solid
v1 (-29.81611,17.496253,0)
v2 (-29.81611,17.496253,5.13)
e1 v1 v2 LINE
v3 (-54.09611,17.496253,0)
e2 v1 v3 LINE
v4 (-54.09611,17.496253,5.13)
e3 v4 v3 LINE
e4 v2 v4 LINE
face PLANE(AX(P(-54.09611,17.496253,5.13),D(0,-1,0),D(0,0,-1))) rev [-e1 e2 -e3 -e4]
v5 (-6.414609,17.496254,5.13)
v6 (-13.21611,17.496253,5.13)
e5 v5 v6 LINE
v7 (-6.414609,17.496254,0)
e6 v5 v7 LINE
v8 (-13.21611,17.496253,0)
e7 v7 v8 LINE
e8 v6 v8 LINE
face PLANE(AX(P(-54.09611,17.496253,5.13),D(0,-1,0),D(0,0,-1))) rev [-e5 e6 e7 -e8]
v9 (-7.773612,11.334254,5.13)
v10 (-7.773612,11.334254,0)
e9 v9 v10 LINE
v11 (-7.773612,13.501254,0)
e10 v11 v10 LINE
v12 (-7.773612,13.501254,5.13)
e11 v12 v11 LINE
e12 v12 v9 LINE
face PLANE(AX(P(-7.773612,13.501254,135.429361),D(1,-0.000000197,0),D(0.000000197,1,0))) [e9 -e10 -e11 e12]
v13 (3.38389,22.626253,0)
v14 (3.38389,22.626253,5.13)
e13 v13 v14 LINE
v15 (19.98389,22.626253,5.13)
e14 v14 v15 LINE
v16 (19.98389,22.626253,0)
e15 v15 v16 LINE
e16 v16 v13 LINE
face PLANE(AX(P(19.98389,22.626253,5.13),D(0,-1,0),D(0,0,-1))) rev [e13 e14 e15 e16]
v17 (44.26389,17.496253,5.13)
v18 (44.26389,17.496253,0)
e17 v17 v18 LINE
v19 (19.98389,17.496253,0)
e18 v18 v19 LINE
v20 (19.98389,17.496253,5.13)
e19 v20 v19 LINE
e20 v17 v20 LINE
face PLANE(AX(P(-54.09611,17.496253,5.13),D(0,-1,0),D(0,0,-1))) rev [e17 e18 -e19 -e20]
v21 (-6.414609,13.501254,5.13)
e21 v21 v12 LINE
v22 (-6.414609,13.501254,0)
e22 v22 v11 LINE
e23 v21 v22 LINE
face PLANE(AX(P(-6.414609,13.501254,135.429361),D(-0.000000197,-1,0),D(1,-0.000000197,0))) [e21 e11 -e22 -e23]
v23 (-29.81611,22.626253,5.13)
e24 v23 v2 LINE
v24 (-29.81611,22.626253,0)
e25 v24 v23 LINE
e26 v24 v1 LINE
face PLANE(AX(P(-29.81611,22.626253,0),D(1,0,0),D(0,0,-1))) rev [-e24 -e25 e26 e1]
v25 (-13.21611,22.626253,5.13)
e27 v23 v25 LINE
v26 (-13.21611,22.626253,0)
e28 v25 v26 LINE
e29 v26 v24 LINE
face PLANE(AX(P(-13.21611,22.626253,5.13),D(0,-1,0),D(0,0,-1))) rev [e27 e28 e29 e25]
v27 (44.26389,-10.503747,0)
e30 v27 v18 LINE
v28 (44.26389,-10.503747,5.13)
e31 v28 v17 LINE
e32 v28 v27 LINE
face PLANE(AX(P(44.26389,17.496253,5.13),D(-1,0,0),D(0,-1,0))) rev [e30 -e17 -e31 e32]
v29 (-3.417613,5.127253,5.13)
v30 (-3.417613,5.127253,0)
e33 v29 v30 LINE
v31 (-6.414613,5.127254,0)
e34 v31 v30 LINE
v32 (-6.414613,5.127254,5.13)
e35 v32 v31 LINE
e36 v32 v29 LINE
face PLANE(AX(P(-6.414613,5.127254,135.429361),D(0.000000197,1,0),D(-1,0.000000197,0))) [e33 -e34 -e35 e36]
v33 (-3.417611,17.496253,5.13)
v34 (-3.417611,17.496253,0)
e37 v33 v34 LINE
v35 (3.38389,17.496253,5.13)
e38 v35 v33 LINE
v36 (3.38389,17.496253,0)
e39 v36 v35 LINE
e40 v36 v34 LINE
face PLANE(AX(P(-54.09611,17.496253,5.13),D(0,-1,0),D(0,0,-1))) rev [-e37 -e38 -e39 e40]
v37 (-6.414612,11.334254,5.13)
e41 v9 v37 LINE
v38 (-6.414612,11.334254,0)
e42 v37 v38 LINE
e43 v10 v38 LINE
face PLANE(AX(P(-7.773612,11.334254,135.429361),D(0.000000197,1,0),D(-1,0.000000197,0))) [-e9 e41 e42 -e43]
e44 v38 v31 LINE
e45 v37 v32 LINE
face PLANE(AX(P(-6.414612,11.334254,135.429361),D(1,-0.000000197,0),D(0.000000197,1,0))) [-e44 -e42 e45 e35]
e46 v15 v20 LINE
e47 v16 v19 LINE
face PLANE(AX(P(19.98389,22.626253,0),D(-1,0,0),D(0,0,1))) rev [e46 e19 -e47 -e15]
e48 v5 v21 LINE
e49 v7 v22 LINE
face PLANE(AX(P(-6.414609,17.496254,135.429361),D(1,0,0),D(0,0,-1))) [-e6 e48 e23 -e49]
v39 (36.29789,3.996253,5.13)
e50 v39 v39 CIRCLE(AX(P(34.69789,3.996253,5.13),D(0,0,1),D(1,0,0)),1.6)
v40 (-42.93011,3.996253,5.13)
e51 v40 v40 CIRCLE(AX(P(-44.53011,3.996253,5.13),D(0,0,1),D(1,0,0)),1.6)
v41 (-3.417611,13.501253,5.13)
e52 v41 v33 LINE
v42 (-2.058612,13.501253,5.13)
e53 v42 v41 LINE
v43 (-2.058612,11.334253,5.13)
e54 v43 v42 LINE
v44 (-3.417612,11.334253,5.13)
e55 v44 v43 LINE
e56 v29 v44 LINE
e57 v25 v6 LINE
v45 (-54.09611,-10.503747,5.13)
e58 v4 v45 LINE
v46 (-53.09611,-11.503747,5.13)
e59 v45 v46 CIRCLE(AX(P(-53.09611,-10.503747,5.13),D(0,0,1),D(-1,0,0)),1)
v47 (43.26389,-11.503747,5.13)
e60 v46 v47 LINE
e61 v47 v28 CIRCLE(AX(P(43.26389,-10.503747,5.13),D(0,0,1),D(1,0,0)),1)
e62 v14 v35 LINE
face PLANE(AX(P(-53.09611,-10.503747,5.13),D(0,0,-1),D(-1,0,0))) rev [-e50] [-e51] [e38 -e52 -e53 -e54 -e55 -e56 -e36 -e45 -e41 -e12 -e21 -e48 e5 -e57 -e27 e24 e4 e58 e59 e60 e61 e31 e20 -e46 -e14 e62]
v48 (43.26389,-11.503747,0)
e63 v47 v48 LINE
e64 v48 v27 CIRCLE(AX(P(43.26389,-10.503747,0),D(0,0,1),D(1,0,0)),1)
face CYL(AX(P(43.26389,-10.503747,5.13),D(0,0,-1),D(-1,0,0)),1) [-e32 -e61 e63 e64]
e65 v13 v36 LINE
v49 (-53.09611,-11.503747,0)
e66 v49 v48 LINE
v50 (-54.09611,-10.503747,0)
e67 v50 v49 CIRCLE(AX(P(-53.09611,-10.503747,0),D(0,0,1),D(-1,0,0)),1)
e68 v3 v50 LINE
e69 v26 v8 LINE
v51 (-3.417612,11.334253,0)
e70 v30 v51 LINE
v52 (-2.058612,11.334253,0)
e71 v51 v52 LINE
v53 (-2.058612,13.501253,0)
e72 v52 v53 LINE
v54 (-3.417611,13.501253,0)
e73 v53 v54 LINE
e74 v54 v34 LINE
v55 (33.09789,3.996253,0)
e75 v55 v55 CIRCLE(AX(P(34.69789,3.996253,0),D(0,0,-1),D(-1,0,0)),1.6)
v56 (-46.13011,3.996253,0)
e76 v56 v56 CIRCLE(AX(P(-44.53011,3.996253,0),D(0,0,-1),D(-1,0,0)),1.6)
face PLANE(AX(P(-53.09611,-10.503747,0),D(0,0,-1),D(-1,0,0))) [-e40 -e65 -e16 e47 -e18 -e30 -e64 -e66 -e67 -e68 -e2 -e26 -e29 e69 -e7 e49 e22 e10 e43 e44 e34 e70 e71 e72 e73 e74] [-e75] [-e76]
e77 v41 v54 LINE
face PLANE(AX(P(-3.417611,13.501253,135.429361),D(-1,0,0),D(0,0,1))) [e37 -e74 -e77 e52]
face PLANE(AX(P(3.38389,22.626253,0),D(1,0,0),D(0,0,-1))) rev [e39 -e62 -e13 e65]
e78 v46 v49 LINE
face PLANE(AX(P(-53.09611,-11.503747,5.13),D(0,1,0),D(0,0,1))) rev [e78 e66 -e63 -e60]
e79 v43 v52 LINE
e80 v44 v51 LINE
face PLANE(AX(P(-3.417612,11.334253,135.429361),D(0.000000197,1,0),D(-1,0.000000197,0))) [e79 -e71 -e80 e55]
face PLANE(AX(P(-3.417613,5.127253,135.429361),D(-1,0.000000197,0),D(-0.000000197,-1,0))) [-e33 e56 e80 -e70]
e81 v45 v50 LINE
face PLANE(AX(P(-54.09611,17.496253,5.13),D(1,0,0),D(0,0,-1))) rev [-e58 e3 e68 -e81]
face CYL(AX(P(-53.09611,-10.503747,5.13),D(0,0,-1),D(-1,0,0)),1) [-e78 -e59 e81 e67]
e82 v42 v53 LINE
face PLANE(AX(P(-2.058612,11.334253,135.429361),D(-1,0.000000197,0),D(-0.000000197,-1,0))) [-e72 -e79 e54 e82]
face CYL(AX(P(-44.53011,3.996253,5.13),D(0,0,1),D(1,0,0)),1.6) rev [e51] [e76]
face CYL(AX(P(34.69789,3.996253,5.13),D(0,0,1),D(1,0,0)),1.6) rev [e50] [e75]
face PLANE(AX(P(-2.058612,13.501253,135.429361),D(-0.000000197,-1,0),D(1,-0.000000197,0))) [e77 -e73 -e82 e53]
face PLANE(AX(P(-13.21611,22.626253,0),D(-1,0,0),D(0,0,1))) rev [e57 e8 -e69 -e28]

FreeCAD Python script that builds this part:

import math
import FreeCAD as App
import Part
import Sketcher
from FreeCAD import Vector
Q = App.Units.Quantity

doc = App.newDocument("Part")
body = doc.addObject("PartDesign::Body", "Body")

# Sketch on XY plane
sketch1 = doc.addObject("Sketcher::SketchObject", "Sketch")
body.addObject(sketch1)
sketch1.AttachmentSupport = (doc.XY_Plane, [""])
sketch1.MapMode = "FlatFace"
sketch1.addGeometry([
    Part.LineSegment(Vector(44.3, 17.5, 0), Vector(-54.1, 17.5, 0)),  # 0
    Part.LineSegment(Vector(-54.1, 17.5, 0), Vector(-54.1, -10.5, 0)),  # 1
    Part.ArcOfCircle(Part.Circle(Vector(-53.1, -10.5, 0), Vector(0, 0, 1), 1), math.radians(-180), math.radians(-90)),  # 2
    Part.LineSegment(Vector(-53.1, -11.5, 0), Vector(43.3, -11.5, 0)),  # 3
    Part.ArcOfCircle(Part.Circle(Vector(43.3, -10.5, 0), Vector(0, 0, 1), 1), math.radians(-90), math.radians(0)),  # 4
    Part.LineSegment(Vector(44.3, -10.5, 0), Vector(44.3, 17.5, 0)),  # 5
], False)
sketch1.addConstraint([
    Sketcher.Constraint("Coincident", 0, 2, 1, 1),
    Sketcher.Constraint("Tangent", 1, 2, 2, 1),
    Sketcher.Constraint("Tangent", 2, 2, 3, 1),
    Sketcher.Constraint("Tangent", 3, 2, 4, 1),
    Sketcher.Constraint("Tangent", 4, 2, 5, 1),
    Sketcher.Constraint("Coincident", 5, 2, 0, 1),
    Sketcher.Constraint("Horizontal", 0),
    Sketcher.Constraint("Vertical", 1),
    Sketcher.Constraint("Horizontal", 3),
    Sketcher.Constraint("Vertical", 5),
    Sketcher.Constraint("Equal", 2, 4),
    Sketcher.Constraint("Radius", 2, 1.0),
    Sketcher.Constraint("DistanceY", 1, 2, 1, 1, 28.0),
    Sketcher.Constraint("DistanceX", 0, 2, 0, 1, 98.36),
    Sketcher.Constraint("DistanceX", 2, 3, -1, 1, 53.09611),
    Sketcher.Constraint("DistanceY", 2, 3, -1, 1, 10.503747),
])
pad1 = doc.addObject("PartDesign::Pad", "Pad")
body.addObject(pad1)
pad1.Profile = sketch1
pad1.Length = 5.13

# Sketch on XY plane
sketch2 = doc.addObject("Sketcher::SketchObject", "Sketch001")
body.addObject(sketch2)
sketch2.AttachmentSupport = (doc.XY_Plane, [""])
sketch2.MapMode = "FlatFace"
sketch2.AttachmentOffset = App.Placement(Vector(0, 0, 5.13), App.Rotation())
sketch2.addGeometry([
    Part.Circle(Vector(-44.5, 4, 0), Vector(0, 0, 1), 1.6),
    Part.Circle(Vector(34.7, 4, 0), Vector(0, 0, 1), 1.6),
], False)
sketch2.addConstraint([
    Sketcher.Constraint("Equal", 0, 1),
    Sketcher.Constraint("Horizontal", 0, 3, 1, 3),
    Sketcher.Constraint("Diameter", 0, 3.2),
    Sketcher.Constraint("DistanceX", 0, 3, 1, 3, 79.228),
    Sketcher.Constraint("DistanceX", 0, 3, -1, 1, 44.53011),
    Sketcher.Constraint("DistanceY", -1, 1, 0, 3, 3.996253),
])
doc.recompute()
hole = doc.addObject("PartDesign::Hole", "Hole")
body.addObject(hole)
hole.Profile = sketch2
hole.ThreadType = "None"
hole.Diameter = 3.2
hole.DepthType = "Dimension"
hole.Depth = 5.13
hole.DrillPoint = "Flat"

# Sketch on XZ plane
sketch3 = doc.addObject("Sketcher::SketchObject", "Sketch002")
body.addObject(sketch3)
sketch3.AttachmentSupport = (doc.XZ_Plane, [""])
sketch3.MapMode = "FlatFace"
sketch3.AttachmentOffset = App.Placement(Vector(0, 0, -17.496253), App.Rotation())
sketch3.addGeometry([
    Part.LineSegment(Vector(3, 0, 0), Vector(3, 5, 0)),  # 0
    Part.LineSegment(Vector(3, 5, 0), Vector(20, 5, 0)),  # 1
    Part.LineSegment(Vector(20, 5, 0), Vector(20, 0, 0)),  # 2
    Part.LineSegment(Vector(20, 0, 0), Vector(3, 0, 0)),  # 3
    Part.LineSegment(Vector(-30, 0, 0), Vector(-30, 5, 0)),  # 4
    Part.LineSegment(Vector(-30, 5, 0), Vector(-13, 5, 0)),  # 5
    Part.LineSegment(Vector(-13, 5, 0), Vector(-13, 0, 0)),  # 6
    Part.LineSegment(Vector(-13, 0, 0), Vector(-30, 0, 0)),  # 7
], False)
sketch3.addConstraint([
    Sketcher.Constraint("Coincident", 0, 2, 1, 1),
    Sketcher.Constraint("Coincident", 1, 2, 2, 1),
    Sketcher.Constraint("Coincident", 2, 2, 3, 1),
    Sketcher.Constraint("Coincident", 3, 2, 0, 1),
    Sketcher.Constraint("Coincident", 4, 2, 5, 1),
    Sketcher.Constraint("Coincident", 5, 2, 6, 1),
    Sketcher.Constraint("Coincident", 6, 2, 7, 1),
    Sketcher.Constraint("Coincident", 7, 2, 4, 1),
    Sketcher.Constraint("Vertical", 0),
    Sketcher.Constraint("Horizontal", 1),
    Sketcher.Constraint("Vertical", 2),
    Sketcher.Constraint("Horizontal", 3),
    Sketcher.Constraint("Vertical", 4),
    Sketcher.Constraint("Horizontal", 5),
    Sketcher.Constraint("Vertical", 6),
    Sketcher.Constraint("Horizontal", 7),
    Sketcher.Constraint("PointOnObject", 2, 2, -1),
    Sketcher.Constraint("PointOnObject", 6, 2, -1),
    Sketcher.Constraint("Horizontal", 1, 2, 4, 2),
    Sketcher.Constraint("Equal", 3, 5),
    Sketcher.Constraint("DistanceX", 1, 1, 1, 2, 16.6),
    Sketcher.Constraint("DistanceY", 0, 1, 0, 2, 5.13),
    Sketcher.Constraint("DistanceX", 4, 2, 0, 2, 33.2),
    Sketcher.Constraint("DistanceX", -1, 1, 0, 2, 3.38389),
])
pad2 = doc.addObject("PartDesign::Pad", "Pad001")
body.addObject(pad2)
pad2.Profile = sketch3
pad2.Length = 5.13
pad2.Reversed = True

# Sketch on XY plane
sketch4 = doc.addObject("Sketcher::SketchObject", "Sketch003")
body.addObject(sketch4)
sketch4.AttachmentSupport = (doc.XY_Plane, [""])
sketch4.MapMode = "FlatFace"
sketch4.AttachmentOffset = App.Placement(Vector(0, 0, 5.13), App.Rotation())
sketch4.addGeometry([
    Part.LineSegment(Vector(-6.4, 144.3, 0), Vector(-6.4, 13.5, 0)),  # 0
    Part.LineSegment(Vector(-6.4, 13.5, 0), Vector(-7.8, 13.5, 0)),  # 1
    Part.LineSegment(Vector(-7.8, 13.5, 0), Vector(-7.8, 11.3, 0)),  # 2
    Part.LineSegment(Vector(-7.8, 11.3, 0), Vector(-6.4, 11.3, 0)),  # 3
    Part.LineSegment(Vector(-6.4, 11.3, 0), Vector(-6.4, 5.1, 0)),  # 4
    Part.LineSegment(Vector(-6.4, 5.1, 0), Vector(-3.4, 5.1, 0)),  # 5
    Part.LineSegment(Vector(-3.4, 5.1, 0), Vector(-3.4, 11.3, 0)),  # 6
    Part.LineSegment(Vector(-3.4, 11.3, 0), Vector(-2.1, 11.3, 0)),  # 7
    Part.LineSegment(Vector(-2.1, 11.3, 0), Vector(-2.1, 13.5, 0)),  # 8
    Part.LineSegment(Vector(-2.1, 13.5, 0), Vector(-3.4, 13.5, 0)),  # 9
    Part.LineSegment(Vector(-3.4, 13.5, 0), Vector(-3.4, 144.3, 0)),  # 10
    Part.LineSegment(Vector(-3.4, 144.3, 0), Vector(-3.4, 397.8, 0)),  # 11
    Part.LineSegment(Vector(-3.4, 397.8, 0), Vector(-6.4, 397.8, 0)),  # 12
    Part.LineSegment(Vector(-6.4, 397.8, 0), Vector(-6.4, 144.3, 0)),  # 13
], False)
sketch4.addConstraint([
    Sketcher.Constraint("Coincident", 0, 2, 1, 1),
    Sketcher.Constraint("Coincident", 1, 2, 2, 1),
    Sketcher.Constraint("Coincident", 2, 2, 3, 1),
    Sketcher.Constraint("Coincident", 3, 2, 4, 1),
    Sketcher.Constraint("Coincident", 4, 2, 5, 1),
    Sketcher.Constraint("Coincident", 5, 2, 6, 1),
    Sketcher.Constraint("Coincident", 6, 2, 7, 1),
    Sketcher.Constraint("Coincident", 7, 2, 8, 1),
    Sketcher.Constraint("Coincident", 8, 2, 9, 1),
    Sketcher.Constraint("Coincident", 9, 2, 10, 1),
    Sketcher.Constraint("Coincident", 10, 2, 11, 1),
    Sketcher.Constraint("Coincident", 11, 2, 12, 1),
    Sketcher.Constraint("Coincident", 12, 2, 13, 1),
    Sketcher.Constraint("Coincident", 13, 2, 0, 1),
    Sketcher.Constraint("Vertical", 0),
    Sketcher.Constraint("Horizontal", 1),
    Sketcher.Constraint("Vertical", 2),
    Sketcher.Constraint("Horizontal", 3),
    Sketcher.Constraint("Vertical", 4),
    Sketcher.Constraint("Horizontal", 5),
    Sketcher.Constraint("Vertical", 6),
    Sketcher.Constraint("Horizontal", 7),
    Sketcher.Constraint("Vertical", 8),
    Sketcher.Constraint("Horizontal", 9),
    Sketcher.Constraint("Vertical", 10),
    Sketcher.Constraint("Horizontal", 12),
    Sketcher.Constraint("Parallel", 11, 13),
    Sketcher.Constraint("Horizontal", 3, 2, 6, 2),
    Sketcher.Constraint("Horizontal", 1, 2, 8, 2),
    Sketcher.Constraint("Horizontal", 10, 2, 13, 2),
    Sketcher.Constraint("Vertical", 6, 2, 9, 2),
    Sketcher.Constraint("Equal", 3, 7),
    Sketcher.Constraint("Equal", 5, 12),
    Sketcher.Constraint("Angle", 11, Q("89.999989 deg")),
    Sketcher.Constraint("DistanceX", 3, 1, 3, 2, 1.359),
    Sketcher.Constraint("DistanceX", 5, 1, 5, 2, 2.997),
    Sketcher.Constraint("DistanceY", 2, 2, 2, 1, 2.167),
    Sketcher.Constraint("DistanceY", 4, 2, 4, 1, 6.207),
    Sketcher.Constraint("DistanceY", 0, 2, 0, 1, 130.773599),
    Sketcher.Constraint("Distance", 11, 253.557198),
    Sketcher.Constraint("DistanceX", 0, 2, -1, 1, 6.414609),
    Sketcher.Constraint("DistanceY", -1, 1, 11, 2, 397.832051),
])
pocket1 = doc.addObject("PartDesign::Pocket", "Pocket")
body.addObject(pocket1)
pocket1.Profile = sketch4
pocket1.Type = "ThroughAll"
pocket1.Midplane = True

doc.recompute()
